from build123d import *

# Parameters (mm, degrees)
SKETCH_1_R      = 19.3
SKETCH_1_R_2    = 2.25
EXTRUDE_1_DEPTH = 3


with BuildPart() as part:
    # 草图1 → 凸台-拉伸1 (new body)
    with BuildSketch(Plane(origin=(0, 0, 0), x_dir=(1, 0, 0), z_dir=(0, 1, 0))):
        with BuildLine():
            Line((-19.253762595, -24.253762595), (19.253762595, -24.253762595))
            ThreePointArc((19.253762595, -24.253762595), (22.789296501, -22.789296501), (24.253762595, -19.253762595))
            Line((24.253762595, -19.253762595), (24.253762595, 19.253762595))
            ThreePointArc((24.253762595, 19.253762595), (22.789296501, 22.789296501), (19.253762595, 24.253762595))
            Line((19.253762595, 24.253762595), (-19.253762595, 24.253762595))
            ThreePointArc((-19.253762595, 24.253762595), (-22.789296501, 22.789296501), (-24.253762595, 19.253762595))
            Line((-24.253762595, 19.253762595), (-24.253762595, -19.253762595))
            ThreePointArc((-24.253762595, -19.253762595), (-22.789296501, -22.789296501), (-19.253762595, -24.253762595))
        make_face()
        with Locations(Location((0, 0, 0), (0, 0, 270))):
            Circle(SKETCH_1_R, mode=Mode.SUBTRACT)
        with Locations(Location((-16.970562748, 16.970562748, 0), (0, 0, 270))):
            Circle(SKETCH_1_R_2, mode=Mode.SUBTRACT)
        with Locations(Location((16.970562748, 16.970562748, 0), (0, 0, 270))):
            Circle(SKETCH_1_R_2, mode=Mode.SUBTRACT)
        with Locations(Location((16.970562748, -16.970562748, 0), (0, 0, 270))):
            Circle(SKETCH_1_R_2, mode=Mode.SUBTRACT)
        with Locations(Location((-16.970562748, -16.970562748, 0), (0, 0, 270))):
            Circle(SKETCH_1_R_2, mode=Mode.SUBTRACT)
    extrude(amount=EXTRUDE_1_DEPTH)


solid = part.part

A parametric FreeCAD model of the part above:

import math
import FreeCAD as App
import Part
import Sketcher

doc = App.newDocument("Part")
body = doc.addObject("PartDesign::Body", "Body")

sketch1 = body.newObject("Sketcher::SketchObject", "Sketch")
sketch1.AttachmentSupport = (doc.getObject("XZ_Plane"), [""])
sketch1.MapMode = "FlatFace"
sketch1.addGeometry(Part.LineSegment(App.Vector(-19.3, 24.3, 0), App.Vector(19.3, 24.3, 0)), False)
sketch1.addGeometry(Part.ArcOfCircle(Part.Circle(App.Vector(19.3, 19.3, 0), App.Vector(0, 0, 1), 5), math.radians(0), math.radians(90)), False)
sketch1.addGeometry(Part.LineSegment(App.Vector(24.3, 19.3, 0), App.Vector(24.3, -19.3, 0)), False)
sketch1.addGeometry(Part.ArcOfCircle(Part.Circle(App.Vector(19.3, -19.3, 0), App.Vector(0, 0, 1), 5), math.radians(-90), math.radians(0)), False)
sketch1.addGeometry(Part.LineSegment(App.Vector(19.3, -24.3, 0), App.Vector(-19.3, -24.3, 0)), False)
sketch1.addGeometry(Part.ArcOfCircle(Part.Circle(App.Vector(-19.3, -19.3, 0), App.Vector(0, 0, 1), 5), math.radians(180), math.radians(270)), False)
sketch1.addGeometry(Part.LineSegment(App.Vector(-24.3, -19.3, 0), App.Vector(-24.3, 19.3, 0)), False)
sketch1.addGeometry(Part.ArcOfCircle(Part.Circle(App.Vector(-19.3, 19.3, 0), App.Vector(0, 0, 1), 5), math.radians(90), math.radians(180)), False)
sketch1.addGeometry(Part.Circle(App.Vector(-17, 17, 0), App.Vector(0, 0, 1), 2.2), False)
sketch1.addGeometry(Part.Circle(App.Vector(17, 17, 0), App.Vector(0, 0, 1), 2.2), False)
sketch1.addGeometry(Part.Circle(App.Vector(-17, -17, 0), App.Vector(0, 0, 1), 2.2), False)
sketch1.addGeometry(Part.Circle(App.Vector(0, 0, 0), App.Vector(0, 0, 1), 19.3), False)
sketch1.addGeometry(Part.Circle(App.Vector(17, -17, 0), App.Vector(0, 0, 1), 2.2), False)
sketch1.addConstraint(Sketcher.Constraint("Tangent", 0, 2, 1, 2))
sketch1.addConstraint(Sketcher.Constraint("Tangent", 1, 1, 2, 1))
sketch1.addConstraint(Sketcher.Constraint("Tangent", 2, 2, 3, 2))
sketch1.addConstraint(Sketcher.Constraint("Tangent", 3, 1, 4, 1))
sketch1.addConstraint(Sketcher.Constraint("Tangent", 4, 2, 5, 2))
sketch1.addConstraint(Sketcher.Constraint("Tangent", 5, 1, 6, 1))
sketch1.addConstraint(Sketcher.Constraint("Tangent", 6, 2, 7, 2))
sketch1.addConstraint(Sketcher.Constraint("Tangent", 7, 1, 0, 1))
sketch1.addConstraint(Sketcher.Constraint("Horizontal", 0))
sketch1.addConstraint(Sketcher.Constraint("Vertical", 2))
sketch1.addConstraint(Sketcher.Constraint("Horizontal", 4))
sketch1.addConstraint(Sketcher.Constraint("Vertical", 6))
sketch1.addConstraint(Sketcher.Constraint("Coincident", 11, 3, -1, 1))
sketch1.addConstraint(Sketcher.Constraint("Equal", 1, 3))
sketch1.addConstraint(Sketcher.Constraint("Equal", 3, 5))
sketch1.addConstraint(Sketcher.Constraint("Equal", 5, 7))
sketch1.addConstraint(Sketcher.Constraint("Equal", 8, 9))
sketch1.addConstraint(Sketcher.Constraint("Equal", 9, 10))
sketch1.addConstraint(Sketcher.Constraint("Equal", 10, 12))
sketch1.addConstraint(Sketcher.Constraint("Symmetric", 1, 3, 5, 3, -1, 1))
sketch1.addConstraint(Sketcher.Constraint("Symmetric", 9, 3, 10, 3, -1, 1))
sketch1.addConstraint(Sketcher.Constraint("Symmetric", 8, 3, 12, 3, -1, 1))
sketch1.addConstraint(Sketcher.Constraint("Symmetric", 8, 3, 9, 3, -2))
sketch1.addConstraint(Sketcher.Constraint("Equal", 4, 2))
sketch1.addConstraint(Sketcher.Constraint("Radius", 1, 5.0))
sketch1.addConstraint(Sketcher.Constraint("Diameter", 8, 4.5))
sketch1.addConstraint(Sketcher.Constraint("Diameter", 11, 38.6))
sketch1.addConstraint(Sketcher.Constraint("DistanceX", 7, 3, 8, 3, 2.2832))
sketch1.addConstraint(Sketcher.Constraint("DistanceY", 8, 3, 7, 3, 2.2832))
sketch1.addConstraint(Sketcher.Constraint("DistanceX", 0, 1, 0, 2, 38.507525))
pad1 = body.newObject("PartDesign::Pad", "Pad")
pad1.Profile = sketch1
pad1.Length = 3
pad1.Reversed = True

doc.recompute()
